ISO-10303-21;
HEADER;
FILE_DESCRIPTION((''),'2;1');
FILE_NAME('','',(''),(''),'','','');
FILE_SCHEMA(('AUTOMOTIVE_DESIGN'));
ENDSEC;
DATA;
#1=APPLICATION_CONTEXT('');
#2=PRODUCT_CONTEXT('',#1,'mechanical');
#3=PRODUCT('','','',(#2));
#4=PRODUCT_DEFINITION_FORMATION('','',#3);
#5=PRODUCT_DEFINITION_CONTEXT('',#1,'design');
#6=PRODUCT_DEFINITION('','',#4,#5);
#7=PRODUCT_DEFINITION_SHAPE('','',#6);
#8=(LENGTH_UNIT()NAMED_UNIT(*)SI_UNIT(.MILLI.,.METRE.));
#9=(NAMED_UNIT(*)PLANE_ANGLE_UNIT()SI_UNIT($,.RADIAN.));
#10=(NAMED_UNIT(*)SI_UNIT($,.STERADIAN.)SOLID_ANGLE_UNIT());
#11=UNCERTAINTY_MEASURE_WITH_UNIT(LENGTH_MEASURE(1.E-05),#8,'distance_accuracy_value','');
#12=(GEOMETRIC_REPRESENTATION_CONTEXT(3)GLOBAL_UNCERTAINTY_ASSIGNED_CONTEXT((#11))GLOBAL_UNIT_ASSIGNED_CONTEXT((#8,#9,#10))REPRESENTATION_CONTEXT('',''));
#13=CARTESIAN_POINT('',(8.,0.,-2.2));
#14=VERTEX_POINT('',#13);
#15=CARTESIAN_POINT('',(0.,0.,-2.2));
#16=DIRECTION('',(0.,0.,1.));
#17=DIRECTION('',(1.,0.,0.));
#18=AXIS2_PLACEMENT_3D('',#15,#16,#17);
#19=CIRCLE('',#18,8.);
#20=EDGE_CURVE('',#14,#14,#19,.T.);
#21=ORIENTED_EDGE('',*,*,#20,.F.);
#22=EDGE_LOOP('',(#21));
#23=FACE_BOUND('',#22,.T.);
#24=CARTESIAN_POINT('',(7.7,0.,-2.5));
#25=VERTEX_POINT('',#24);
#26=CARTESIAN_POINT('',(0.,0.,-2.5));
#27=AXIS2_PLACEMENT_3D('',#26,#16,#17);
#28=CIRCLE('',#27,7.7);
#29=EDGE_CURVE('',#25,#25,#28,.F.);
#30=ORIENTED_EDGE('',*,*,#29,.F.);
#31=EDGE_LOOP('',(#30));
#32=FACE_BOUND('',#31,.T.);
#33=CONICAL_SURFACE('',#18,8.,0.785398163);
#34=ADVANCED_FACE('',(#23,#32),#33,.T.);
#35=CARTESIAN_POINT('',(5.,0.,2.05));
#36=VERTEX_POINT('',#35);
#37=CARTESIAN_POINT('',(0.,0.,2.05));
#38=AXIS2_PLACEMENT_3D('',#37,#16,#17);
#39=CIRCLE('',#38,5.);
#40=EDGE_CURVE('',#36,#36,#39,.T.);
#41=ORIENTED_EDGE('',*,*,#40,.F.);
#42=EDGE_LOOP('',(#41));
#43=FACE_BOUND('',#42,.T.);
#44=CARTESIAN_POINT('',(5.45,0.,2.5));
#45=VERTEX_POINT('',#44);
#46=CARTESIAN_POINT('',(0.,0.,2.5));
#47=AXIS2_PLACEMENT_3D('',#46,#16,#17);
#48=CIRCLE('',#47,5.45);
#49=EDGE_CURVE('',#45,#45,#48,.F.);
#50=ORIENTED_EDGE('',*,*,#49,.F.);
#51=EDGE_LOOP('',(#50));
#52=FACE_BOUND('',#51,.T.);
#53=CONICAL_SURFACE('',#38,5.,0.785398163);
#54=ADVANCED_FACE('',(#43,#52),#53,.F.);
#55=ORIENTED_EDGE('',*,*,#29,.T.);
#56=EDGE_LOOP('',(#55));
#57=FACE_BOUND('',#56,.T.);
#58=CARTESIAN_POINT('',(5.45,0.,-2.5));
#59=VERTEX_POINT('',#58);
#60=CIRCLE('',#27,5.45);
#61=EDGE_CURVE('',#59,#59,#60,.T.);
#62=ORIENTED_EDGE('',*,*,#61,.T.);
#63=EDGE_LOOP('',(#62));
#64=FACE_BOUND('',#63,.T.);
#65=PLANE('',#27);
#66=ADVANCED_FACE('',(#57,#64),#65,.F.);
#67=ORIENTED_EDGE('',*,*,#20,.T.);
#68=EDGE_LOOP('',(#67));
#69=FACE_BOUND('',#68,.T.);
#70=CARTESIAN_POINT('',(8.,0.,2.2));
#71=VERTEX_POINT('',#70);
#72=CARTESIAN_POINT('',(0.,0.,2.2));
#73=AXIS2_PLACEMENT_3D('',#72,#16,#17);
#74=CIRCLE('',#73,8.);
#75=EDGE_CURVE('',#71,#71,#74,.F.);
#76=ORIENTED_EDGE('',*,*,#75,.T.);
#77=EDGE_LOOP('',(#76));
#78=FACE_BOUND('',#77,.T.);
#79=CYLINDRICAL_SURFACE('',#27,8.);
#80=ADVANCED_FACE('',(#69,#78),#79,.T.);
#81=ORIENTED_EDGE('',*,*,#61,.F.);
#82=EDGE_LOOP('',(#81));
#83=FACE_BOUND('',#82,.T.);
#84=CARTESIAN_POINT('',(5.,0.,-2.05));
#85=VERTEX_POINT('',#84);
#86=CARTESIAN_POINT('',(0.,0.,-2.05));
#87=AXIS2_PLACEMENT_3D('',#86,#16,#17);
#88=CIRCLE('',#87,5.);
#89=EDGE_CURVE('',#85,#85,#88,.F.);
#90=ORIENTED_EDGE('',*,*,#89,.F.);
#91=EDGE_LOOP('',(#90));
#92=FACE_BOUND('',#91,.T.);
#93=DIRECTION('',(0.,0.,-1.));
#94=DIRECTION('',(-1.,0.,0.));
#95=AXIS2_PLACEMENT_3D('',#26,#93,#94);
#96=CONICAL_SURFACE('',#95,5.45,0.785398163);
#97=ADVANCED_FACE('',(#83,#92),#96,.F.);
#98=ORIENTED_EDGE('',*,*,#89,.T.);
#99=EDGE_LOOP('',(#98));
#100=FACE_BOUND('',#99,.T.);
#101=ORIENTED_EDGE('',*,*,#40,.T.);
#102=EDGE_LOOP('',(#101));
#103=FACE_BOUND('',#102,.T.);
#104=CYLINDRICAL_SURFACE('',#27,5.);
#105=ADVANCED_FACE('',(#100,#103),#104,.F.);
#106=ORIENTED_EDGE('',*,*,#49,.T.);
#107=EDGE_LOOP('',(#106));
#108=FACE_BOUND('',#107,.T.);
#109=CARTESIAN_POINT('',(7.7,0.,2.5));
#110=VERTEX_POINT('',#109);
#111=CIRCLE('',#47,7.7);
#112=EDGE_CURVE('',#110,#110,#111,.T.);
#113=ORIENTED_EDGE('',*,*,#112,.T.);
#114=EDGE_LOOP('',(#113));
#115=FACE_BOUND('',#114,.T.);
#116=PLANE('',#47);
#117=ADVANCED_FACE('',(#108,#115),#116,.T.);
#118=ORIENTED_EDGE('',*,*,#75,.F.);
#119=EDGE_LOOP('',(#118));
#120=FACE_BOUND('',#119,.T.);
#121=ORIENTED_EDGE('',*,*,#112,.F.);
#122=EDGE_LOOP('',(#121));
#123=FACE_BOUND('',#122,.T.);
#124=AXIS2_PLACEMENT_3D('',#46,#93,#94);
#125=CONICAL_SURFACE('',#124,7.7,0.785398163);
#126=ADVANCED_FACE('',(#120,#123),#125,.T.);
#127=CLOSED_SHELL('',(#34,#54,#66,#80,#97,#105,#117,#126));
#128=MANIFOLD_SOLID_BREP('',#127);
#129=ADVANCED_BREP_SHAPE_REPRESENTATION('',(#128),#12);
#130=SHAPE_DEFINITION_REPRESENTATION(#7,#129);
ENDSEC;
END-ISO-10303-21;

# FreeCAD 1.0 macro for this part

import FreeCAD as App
import Part
import Sketcher
from FreeCAD import Vector
Q = App.Units.Quantity


def edges_at(feature, points):
    """Names of the edges that pass closest to the given points."""
    edges = feature.Shape.Edges
    near = lambda p: min(range(len(edges)), key=lambda i: edges[i].distToShape(Part.Vertex(*p))[0])
    return sorted({f"Edge{near(p) + 1}" for p in points})

doc = App.newDocument("Part")
params = doc.addObject("Spreadsheet::Sheet", "Params")
for row, (alias, value) in enumerate([
    ("sketch1_diameter", "16 mm"),
    ("sketch1_diameter2", "10 mm"),
    ("pad1_length", "2.5 mm"),
    ("pad1_length2", "2.5 mm"),
    ("chamfer_size", "0.3 mm"),
    ("chamfer2_size", "0.45 mm"),
], start=1):
    params.set(f"A{row}", alias)
    params.set(f"B{row}", "=" + value)
    params.setAlias(f"B{row}", alias)

body = doc.addObject("PartDesign::Body", "Body")

# Sketch on XY plane
sketch1 = doc.addObject("Sketcher::SketchObject", "Sketch")
body.addObject(sketch1)
sketch1.AttachmentSupport = (doc.XY_Plane, [""])
sketch1.MapMode = "FlatFace"
sketch1.addGeometry([
    Part.Circle(Vector(0, 0, 0), Vector(0, 0, 1), 8),
    Part.Circle(Vector(0, 0, 0), Vector(0, 0, 1), 5),
], False)
sketch1.addConstraint([
    Sketcher.Constraint("Coincident", 0, 3, -1, 1),
    Sketcher.Constraint("Coincident", 1, 3, -1, 1),
    Sketcher.Constraint("Diameter", 0, Q("16 mm")),
    Sketcher.Constraint("Diameter", 1, Q("10 mm")),
])
sketch1.setExpression("Constraints[2]", "Params.sketch1_diameter")
sketch1.setExpression("Constraints[3]", "Params.sketch1_diameter2")
pad1 = doc.addObject("PartDesign::Pad", "Pad")
body.addObject(pad1)
pad1.Profile = sketch1
pad1.Type = "TwoLengths"
pad1.setExpression("Length", "Params.pad1_length")
pad1.setExpression("Length2", "Params.pad1_length2")
doc.recompute()

chamfer = doc.addObject("PartDesign::Chamfer", "Chamfer")
body.addObject(chamfer)
chamfer.Base = (pad1, edges_at(pad1, [(-8, 0, -2.5), (-8, 0, 2.5)]))
chamfer.setExpression("Size", "Params.chamfer_size")
doc.recompute()

chamfer2 = doc.addObject("PartDesign::Chamfer", "Chamfer001")
body.addObject(chamfer2)
chamfer2.Base = (chamfer, edges_at(chamfer, [(-5, 0, -2.5), (-5, 0, 2.5)]))
chamfer2.setExpression("Size", "Params.chamfer2_size")

doc.recompute()
